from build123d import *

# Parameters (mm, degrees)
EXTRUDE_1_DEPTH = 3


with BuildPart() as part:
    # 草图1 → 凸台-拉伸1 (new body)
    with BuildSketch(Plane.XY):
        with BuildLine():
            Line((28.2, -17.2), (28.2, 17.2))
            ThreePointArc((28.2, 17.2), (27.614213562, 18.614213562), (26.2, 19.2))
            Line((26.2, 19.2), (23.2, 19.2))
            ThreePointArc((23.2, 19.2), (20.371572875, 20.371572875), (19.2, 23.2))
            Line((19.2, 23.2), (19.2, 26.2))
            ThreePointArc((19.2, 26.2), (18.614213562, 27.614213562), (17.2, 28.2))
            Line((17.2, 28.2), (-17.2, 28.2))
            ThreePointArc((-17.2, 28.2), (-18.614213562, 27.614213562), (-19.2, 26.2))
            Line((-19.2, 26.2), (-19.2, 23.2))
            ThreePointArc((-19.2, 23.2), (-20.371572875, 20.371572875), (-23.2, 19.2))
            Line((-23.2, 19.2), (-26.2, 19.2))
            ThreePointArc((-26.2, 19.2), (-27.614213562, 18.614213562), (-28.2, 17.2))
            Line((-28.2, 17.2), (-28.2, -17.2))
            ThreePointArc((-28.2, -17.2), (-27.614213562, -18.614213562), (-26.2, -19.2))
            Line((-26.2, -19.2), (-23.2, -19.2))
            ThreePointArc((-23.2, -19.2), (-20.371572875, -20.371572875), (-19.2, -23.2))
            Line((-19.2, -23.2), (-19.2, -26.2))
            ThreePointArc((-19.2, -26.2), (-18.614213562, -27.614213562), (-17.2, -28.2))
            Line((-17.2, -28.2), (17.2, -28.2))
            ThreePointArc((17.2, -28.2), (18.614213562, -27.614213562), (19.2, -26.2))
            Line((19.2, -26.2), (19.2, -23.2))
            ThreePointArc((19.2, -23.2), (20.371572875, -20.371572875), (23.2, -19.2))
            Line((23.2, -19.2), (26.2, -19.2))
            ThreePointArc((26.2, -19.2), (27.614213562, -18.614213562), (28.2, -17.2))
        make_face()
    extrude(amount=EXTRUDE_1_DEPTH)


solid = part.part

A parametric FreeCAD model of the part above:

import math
import FreeCAD as App
import Part
import Sketcher
Q = App.Units.Quantity

doc = App.newDocument("Part")
body = doc.addObject("PartDesign::Body", "Body")

# Sketch on XY plane
sketch1 = body.newObject("Sketcher::SketchObject", "Sketch")
sketch1.AttachmentSupport = (doc.getObject("XY_Plane"), [""])
sketch1.MapMode = "FlatFace"
sketch1.addGeometry(Part.LineSegment(App.Vector(28.2, -17.2, 0), App.Vector(28.2, 17.2, 0)), False)
sketch1.addGeometry(Part.ArcOfCircle(Part.Circle(App.Vector(26.2, 17.2, 0), App.Vector(0, 0, 1), 2), math.radians(0), math.radians(90)), False)
sketch1.addGeometry(Part.LineSegment(App.Vector(26.2, 19.2, 0), App.Vector(23.2, 19.2, 0)), False)
sketch1.addGeometry(Part.ArcOfCircle(Part.Circle(App.Vector(23.2, 23.2, 0), App.Vector(0, 0, 1), 4), math.radians(180), math.radians(270)), False)
sketch1.addGeometry(Part.LineSegment(App.Vector(19.2, 23.2, 0), App.Vector(19.2, 26.2, 0)), False)
sketch1.addGeometry(Part.ArcOfCircle(Part.Circle(App.Vector(17.2, 26.2, 0), App.Vector(0, 0, 1), 2), math.radians(0), math.radians(90)), False)
sketch1.addGeometry(Part.LineSegment(App.Vector(17.2, 28.2, 0), App.Vector(-17.2, 28.2, 0)), False)
sketch1.addGeometry(Part.ArcOfCircle(Part.Circle(App.Vector(-17.2, 26.2, 0), App.Vector(0, 0, 1), 2), math.radians(90), math.radians(180)), False)
sketch1.addGeometry(Part.LineSegment(App.Vector(-19.2, 26.2, 0), App.Vector(-19.2, 23.2, 0)), False)
sketch1.addGeometry(Part.ArcOfCircle(Part.Circle(App.Vector(-23.2, 23.2, 0), App.Vector(0, 0, 1), 4), math.radians(-90), math.radians(0)), False)
sketch1.addGeometry(Part.LineSegment(App.Vector(-23.2, 19.2, 0), App.Vector(-26.2, 19.2, 0)), False)
sketch1.addGeometry(Part.ArcOfCircle(Part.Circle(App.Vector(-26.2, 17.2, 0), App.Vector(0, 0, 1), 2), math.radians(90), math.radians(180)), False)
sketch1.addGeometry(Part.LineSegment(App.Vector(-28.2, 17.2, 0), App.Vector(-28.2, -17.2, 0)), False)
sketch1.addGeometry(Part.ArcOfCircle(Part.Circle(App.Vector(-26.2, -17.2, 0), App.Vector(0, 0, 1), 2), math.radians(-180), math.radians(-90)), False)
sketch1.addGeometry(Part.LineSegment(App.Vector(-26.2, -19.2, 0), App.Vector(-23.2, -19.2, 0)), False)
sketch1.addGeometry(Part.ArcOfCircle(Part.Circle(App.Vector(-23.2, -23.2, 0), App.Vector(0, 0, 1), 4), math.radians(0), math.radians(90)), False)
sketch1.addGeometry(Part.LineSegment(App.Vector(-19.2, -23.2, 0), App.Vector(-19.2, -26.2, 0)), False)
sketch1.addGeometry(Part.ArcOfCircle(Part.Circle(App.Vector(-17.2, -26.2, 0), App.Vector(0, 0, 1), 2), math.radians(-180), math.radians(-90)), False)
sketch1.addGeometry(Part.LineSegment(App.Vector(-17.2, -28.2, 0), App.Vector(17.2, -28.2, 0)), False)
sketch1.addGeometry(Part.ArcOfCircle(Part.Circle(App.Vector(17.2, -26.2, 0), App.Vector(0, 0, 1), 2), math.radians(-90), math.radians(0)), False)
sketch1.addGeometry(Part.LineSegment(App.Vector(19.2, -26.2, 0), App.Vector(19.2, -23.2, 0)), False)
sketch1.addGeometry(Part.ArcOfCircle(Part.Circle(App.Vector(23.2, -23.2, 0), App.Vector(0, 0, 1), 4), math.radians(90), math.radians(180)), False)
sketch1.addGeometry(Part.LineSegment(App.Vector(23.2, -19.2, 0), App.Vector(26.2, -19.2, 0)), False)
sketch1.addGeometry(Part.ArcOfCircle(Part.Circle(App.Vector(26.2, -17.2, 0), App.Vector(0, 0, 1), 2), math.radians(-90), math.radians(0)), False)
sketch1.addConstraint(Sketcher.Constraint("Tangent", 0, 2, 1, 1))
sketch1.addConstraint(Sketcher.Constraint("Tangent", 1, 2, 2, 1))
sketch1.addConstraint(Sketcher.Constraint("Tangent", 2, 2, 3, 2))
sketch1.addConstraint(Sketcher.Constraint("Tangent", 3, 1, 4, 1))
sketch1.addConstraint(Sketcher.Constraint("Tangent", 4, 2, 5, 1))
sketch1.addConstraint(Sketcher.Constraint("Tangent", 5, 2, 6, 1))
sketch1.addConstraint(Sketcher.Constraint("Tangent", 6, 2, 7, 1))
sketch1.addConstraint(Sketcher.Constraint("Tangent", 7, 2, 8, 1))
sketch1.addConstraint(Sketcher.Constraint("Tangent", 8, 2, 9, 2))
sketch1.addConstraint(Sketcher.Constraint("Tangent", 9, 1, 10, 1))
sketch1.addConstraint(Sketcher.Constraint("Tangent", 10, 2, 11, 1))
sketch1.addConstraint(Sketcher.Constraint("Tangent", 11, 2, 12, 1))
sketch1.addConstraint(Sketcher.Constraint("Tangent", 12, 2, 13, 1))
sketch1.addConstraint(Sketcher.Constraint("Tangent", 13, 2, 14, 1))
sketch1.addConstraint(Sketcher.Constraint("Tangent", 14, 2, 15, 2))
sketch1.addConstraint(Sketcher.Constraint("Tangent", 15, 1, 16, 1))
sketch1.addConstraint(Sketcher.Constraint("Tangent", 16, 2, 17, 1))
sketch1.addConstraint(Sketcher.Constraint("Tangent", 17, 2, 18, 1))
sketch1.addConstraint(Sketcher.Constraint("Tangent", 18, 2, 19, 1))
sketch1.addConstraint(Sketcher.Constraint("Tangent", 19, 2, 20, 1))
sketch1.addConstraint(Sketcher.Constraint("Tangent", 20, 2, 21, 2))
sketch1.addConstraint(Sketcher.Constraint("Tangent", 21, 1, 22, 1))
sketch1.addConstraint(Sketcher.Constraint("Tangent", 22, 2, 23, 1))
sketch1.addConstraint(Sketcher.Constraint("Tangent", 23, 2, 0, 1))
sketch1.addConstraint(Sketcher.Constraint("Vertical", 0))
sketch1.addConstraint(Sketcher.Constraint("Horizontal", 2))
sketch1.addConstraint(Sketcher.Constraint("Vertical", 4))
sketch1.addConstraint(Sketcher.Constraint("Horizontal", 6))
sketch1.addConstraint(Sketcher.Constraint("Vertical", 8))
sketch1.addConstraint(Sketcher.Constraint("Horizontal", 10))
sketch1.addConstraint(Sketcher.Constraint("Vertical", 12))
sketch1.addConstraint(Sketcher.Constraint("Horizontal", 14))
sketch1.addConstraint(Sketcher.Constraint("Vertical", 16))
sketch1.addConstraint(Sketcher.Constraint("Horizontal", 18))
sketch1.addConstraint(Sketcher.Constraint("Vertical", 20))
sketch1.addConstraint(Sketcher.Constraint("Horizontal", 22))
sketch1.addConstraint(Sketcher.Constraint("Equal", 1, 5))
sketch1.addConstraint(Sketcher.Constraint("Equal", 5, 7))
sketch1.addConstraint(Sketcher.Constraint("Equal", 3, 9))
sketch1.addConstraint(Sketcher.Constraint("Equal", 7, 11))
sketch1.addConstraint(Sketcher.Constraint("Equal", 11, 13))
sketch1.addConstraint(Sketcher.Constraint("Equal", 9, 15))
sketch1.addConstraint(Sketcher.Constraint("Equal", 13, 17))
sketch1.addConstraint(Sketcher.Constraint("Equal", 17, 19))
sketch1.addConstraint(Sketcher.Constraint("Equal", 15, 21))
sketch1.addConstraint(Sketcher.Constraint("Equal", 19, 23))
sketch1.addConstraint(Sketcher.Constraint("Symmetric", 1, 3, 13, 3, -1, 1))
sketch1.addConstraint(Sketcher.Constraint("Symmetric", 5, 3, 17, 3, -1, 1))
sketch1.addConstraint(Sketcher.Constraint("Symmetric", 9, 3, 21, 3, -1, 1))
sketch1.addConstraint(Sketcher.Constraint("Symmetric", 3, 3, 9, 3, -2))
sketch1.addConstraint(Sketcher.Constraint("Equal", 18, 0))
sketch1.addConstraint(Sketcher.Constraint("Equal", 22, 4))
sketch1.addConstraint(Sketcher.Constraint("Radius", 1, Q("2 mm")))
sketch1.addConstraint(Sketcher.Constraint("Radius", 3, Q("4 mm")))
sketch1.addConstraint(Sketcher.Constraint("DistanceX", 2, 2, 2, 1, Q("3 mm")))
sketch1.addConstraint(Sketcher.Constraint("DistanceX", 6, 2, 6, 1, Q("34.4 mm")))
pad1 = body.newObject("PartDesign::Pad", "Pad")
pad1.Profile = sketch1
pad1.Length = 3

doc.recompute()
